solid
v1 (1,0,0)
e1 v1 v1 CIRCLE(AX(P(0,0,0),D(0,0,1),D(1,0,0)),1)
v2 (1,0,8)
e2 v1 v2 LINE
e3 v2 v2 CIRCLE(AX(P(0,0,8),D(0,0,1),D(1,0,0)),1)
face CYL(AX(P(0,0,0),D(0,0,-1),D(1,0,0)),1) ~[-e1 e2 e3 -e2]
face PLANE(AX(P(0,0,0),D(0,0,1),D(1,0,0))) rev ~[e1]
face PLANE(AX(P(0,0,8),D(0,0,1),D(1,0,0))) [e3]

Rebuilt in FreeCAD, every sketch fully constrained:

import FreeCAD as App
import Part
import Sketcher
from FreeCAD import Vector

doc = App.newDocument("Part")
body = doc.addObject("PartDesign::Body", "Body")

# Sketch on XY plane
sketch1 = doc.addObject("Sketcher::SketchObject", "Sketch")
body.addObject(sketch1)
sketch1.AttachmentSupport = (doc.XY_Plane, [""])
sketch1.MapMode = "FlatFace"
sketch1.addGeometry(Part.Circle(Vector(0, 0, 0), Vector(0, 0, 1), 1), False)
sketch1.addConstraint(Sketcher.Constraint("Coincident", 0, 3, -1, 1))
sketch1.addConstraint(Sketcher.Constraint("Diameter", 0, 2.0))
pad1 = doc.addObject("PartDesign::Pad", "Pad")
body.addObject(pad1)
pad1.Profile = sketch1
pad1.Length = 8

doc.recompute()
